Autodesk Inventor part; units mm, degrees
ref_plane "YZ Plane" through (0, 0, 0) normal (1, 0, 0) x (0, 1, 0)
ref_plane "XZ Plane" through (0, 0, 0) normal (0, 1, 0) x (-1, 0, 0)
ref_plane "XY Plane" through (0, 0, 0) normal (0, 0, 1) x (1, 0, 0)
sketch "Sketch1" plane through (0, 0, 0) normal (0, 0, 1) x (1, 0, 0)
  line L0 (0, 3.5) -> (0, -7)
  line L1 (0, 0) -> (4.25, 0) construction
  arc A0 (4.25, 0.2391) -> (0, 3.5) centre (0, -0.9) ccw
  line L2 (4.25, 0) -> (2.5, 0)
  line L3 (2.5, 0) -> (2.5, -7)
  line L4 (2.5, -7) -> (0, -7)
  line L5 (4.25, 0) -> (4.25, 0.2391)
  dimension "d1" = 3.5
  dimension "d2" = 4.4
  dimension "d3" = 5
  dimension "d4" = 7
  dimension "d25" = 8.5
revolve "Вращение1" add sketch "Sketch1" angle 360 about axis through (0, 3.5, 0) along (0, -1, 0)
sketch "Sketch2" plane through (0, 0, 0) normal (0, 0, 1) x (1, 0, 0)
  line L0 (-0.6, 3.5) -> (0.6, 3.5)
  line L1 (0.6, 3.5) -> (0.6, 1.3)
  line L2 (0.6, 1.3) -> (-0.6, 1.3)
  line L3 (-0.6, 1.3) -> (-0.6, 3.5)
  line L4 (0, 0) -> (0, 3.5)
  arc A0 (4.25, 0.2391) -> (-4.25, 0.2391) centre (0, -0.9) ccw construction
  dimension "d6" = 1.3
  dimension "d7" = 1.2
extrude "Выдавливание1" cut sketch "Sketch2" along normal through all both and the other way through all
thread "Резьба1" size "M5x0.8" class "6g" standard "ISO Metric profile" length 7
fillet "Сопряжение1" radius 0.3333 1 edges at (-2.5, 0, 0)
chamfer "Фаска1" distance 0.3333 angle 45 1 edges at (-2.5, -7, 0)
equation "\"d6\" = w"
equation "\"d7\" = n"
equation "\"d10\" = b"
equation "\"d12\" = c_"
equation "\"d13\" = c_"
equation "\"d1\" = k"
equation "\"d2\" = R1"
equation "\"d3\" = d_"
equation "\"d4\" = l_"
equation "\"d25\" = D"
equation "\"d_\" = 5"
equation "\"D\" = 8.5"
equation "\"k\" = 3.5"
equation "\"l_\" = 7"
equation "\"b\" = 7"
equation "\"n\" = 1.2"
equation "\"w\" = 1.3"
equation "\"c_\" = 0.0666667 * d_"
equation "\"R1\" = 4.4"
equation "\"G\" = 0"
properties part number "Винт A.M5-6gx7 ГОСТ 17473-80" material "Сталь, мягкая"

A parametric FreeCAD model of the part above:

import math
import FreeCAD as App
import Part
import Sketcher
from FreeCAD import Vector
Q = App.Units.Quantity


def edges_at(feature, points):
    """Names of the edges that pass closest to the given points."""
    edges = feature.Shape.Edges
    near = lambda p: min(range(len(edges)), key=lambda i: edges[i].distToShape(Part.Vertex(*p))[0])
    return sorted({f"Edge{near(p) + 1}" for p in points})

doc = App.newDocument("Part")
body = doc.addObject("PartDesign::Body", "Body")

sketch1 = doc.addObject("Sketcher::SketchObject", "Sketch")
body.addObject(sketch1)
sketch1.AttachmentSupport = (doc.XY_Plane, [""])
sketch1.MapMode = "FlatFace"
sketch1.addGeometry([
    Part.ArcOfCircle(Part.Circle(Vector(0, -0.9, 0), Vector(0, 0, 1), 4.4), math.radians(15), math.radians(90)),
    Part.LineSegment(Vector(0, 3.5, 0), Vector(0, -7, 0)),
    Part.LineSegment(Vector(0, -7, 0), Vector(2.5, -7, 0)),
    Part.LineSegment(Vector(2.5, -7, 0), Vector(2.5, 0, 0)),
    Part.LineSegment(Vector(2.5, 0, 0), Vector(4.25, 0, 0)),
    Part.LineSegment(Vector(4.25, 0, 0), Vector(4.25, 0.24, 0)),
], False)
sketch1.addConstraint([
    Sketcher.Constraint("Coincident", 0, 2, 1, 1),
    Sketcher.Constraint("Coincident", 1, 2, 2, 1),
    Sketcher.Constraint("Coincident", 2, 2, 3, 1),
    Sketcher.Constraint("Coincident", 3, 2, 4, 1),
    Sketcher.Constraint("Coincident", 4, 2, 5, 1),
    Sketcher.Constraint("Coincident", 5, 2, 0, 1),
    Sketcher.Constraint("Vertical", 1),
    Sketcher.Constraint("Horizontal", 2),
    Sketcher.Constraint("Vertical", 3),
    Sketcher.Constraint("Horizontal", 4),
    Sketcher.Constraint("Vertical", 5),
    Sketcher.Constraint("PointOnObject", 0, 3, -2),
    Sketcher.Constraint("PointOnObject", 0, 2, -2),
    Sketcher.Constraint("PointOnObject", 3, 2, -1),
    Sketcher.Constraint("Radius", 0, Q("4.4 mm")),
    Sketcher.Constraint("DistanceY", 3, 1, 3, 2, Q("7 mm")),
    Sketcher.Constraint("DistanceY", -1, 1, 0, 2, Q("3.5 mm")),
    Sketcher.Constraint("DistanceX", 2, 1, 2, 2, Q("2.5 mm")),
    Sketcher.Constraint("DistanceX", 4, 1, 4, 2, Q("1.75 mm")),
])
revolution = doc.addObject("PartDesign::Revolution", "Revolution")
body.addObject(revolution)
revolution.Profile = sketch1
revolution.ReferenceAxis = (sketch1, ["V_Axis"])
revolution.Angle = 360

sketch2 = doc.addObject("Sketcher::SketchObject", "Sketch001")
body.addObject(sketch2)
sketch2.AttachmentSupport = (doc.XY_Plane, [""])
sketch2.MapMode = "FlatFace"
sketch2.addGeometry([
    Part.LineSegment(Vector(-0.6, 3.5, 0), Vector(-0.6, 1.3, 0)),
    Part.LineSegment(Vector(-0.6, 1.3, 0), Vector(0.6, 1.3, 0)),
    Part.LineSegment(Vector(0.6, 1.3, 0), Vector(0.6, 3.5, 0)),
    Part.LineSegment(Vector(0.6, 3.5, 0), Vector(-0.6, 3.5, 0)),
], False)
sketch2.addConstraint([
    Sketcher.Constraint("Coincident", 0, 2, 1, 1),
    Sketcher.Constraint("Coincident", 1, 2, 2, 1),
    Sketcher.Constraint("Coincident", 2, 2, 3, 1),
    Sketcher.Constraint("Coincident", 3, 2, 0, 1),
    Sketcher.Constraint("Vertical", 0),
    Sketcher.Constraint("Horizontal", 1),
    Sketcher.Constraint("Vertical", 2),
    Sketcher.Constraint("Horizontal", 3),
    Sketcher.Constraint("DistanceX", 1, 1, 1, 2, Q("1.2 mm")),
    Sketcher.Constraint("DistanceY", -1, 1, 0, 2, Q("1.3 mm")),
    Sketcher.Constraint("DistanceY", 0, 2, 0, 1, Q("2.2 mm")),
    Sketcher.Constraint("DistanceX", 0, 2, -1, 1, Q("0.6 mm")),
])
pocket1 = doc.addObject("PartDesign::Pocket", "Pocket")
body.addObject(pocket1)
pocket1.Profile = sketch2
pocket1.Type = "ThroughAll"
pocket1.Midplane = True
doc.recompute()

fillet = doc.addObject("PartDesign::Fillet", "Fillet")
body.addObject(fillet)
fillet.Base = (pocket1, edges_at(pocket1, [(-2.5, 0, 0)]))
fillet.Radius = 0.3333
doc.recompute()

chamfer = doc.addObject("PartDesign::Chamfer", "Chamfer")
body.addObject(chamfer)
chamfer.Base = (fillet, edges_at(fillet, [(-2.5, -7, 0)]))
chamfer.Size = 0.3333

doc.recompute()
